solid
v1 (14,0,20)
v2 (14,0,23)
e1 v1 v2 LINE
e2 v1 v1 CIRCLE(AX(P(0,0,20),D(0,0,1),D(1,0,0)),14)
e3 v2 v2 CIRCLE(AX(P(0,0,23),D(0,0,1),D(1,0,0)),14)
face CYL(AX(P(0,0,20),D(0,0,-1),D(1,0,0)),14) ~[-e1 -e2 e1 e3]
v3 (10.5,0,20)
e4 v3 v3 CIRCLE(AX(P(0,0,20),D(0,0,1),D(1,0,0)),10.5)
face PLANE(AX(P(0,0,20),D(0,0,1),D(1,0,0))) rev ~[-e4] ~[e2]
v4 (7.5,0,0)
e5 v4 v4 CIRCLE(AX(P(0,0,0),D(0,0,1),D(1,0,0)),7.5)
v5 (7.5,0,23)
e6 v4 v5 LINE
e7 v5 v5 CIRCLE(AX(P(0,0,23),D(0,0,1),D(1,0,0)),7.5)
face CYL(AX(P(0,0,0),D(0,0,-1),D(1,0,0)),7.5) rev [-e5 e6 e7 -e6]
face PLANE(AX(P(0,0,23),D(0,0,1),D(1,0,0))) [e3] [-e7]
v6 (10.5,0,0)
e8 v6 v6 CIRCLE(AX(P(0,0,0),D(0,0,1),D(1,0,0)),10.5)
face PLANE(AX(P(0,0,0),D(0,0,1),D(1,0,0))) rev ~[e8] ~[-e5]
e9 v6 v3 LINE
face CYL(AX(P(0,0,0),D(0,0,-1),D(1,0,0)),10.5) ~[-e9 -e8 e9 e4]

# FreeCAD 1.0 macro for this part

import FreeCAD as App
import Part
import Sketcher
Q = App.Units.Quantity

doc = App.newDocument("Part")
body = doc.addObject("PartDesign::Body", "Body")

# Sketch on XY plane
sketch1 = doc.addObject("Sketcher::SketchObject", "Sketch")
body.addObject(sketch1)
sketch1.AttachmentSupport = (doc.XY_Plane, [""])
sketch1.MapMode = "FlatFace"
sketch1.addGeometry(Part.Circle(App.Vector(0, 0, 0), App.Vector(0, 0, 1), 10), False)
sketch1.addGeometry(Part.Circle(App.Vector(0, 0, 0), App.Vector(0, 0, 1), 8), False)
sketch1.addConstraint(Sketcher.Constraint("Coincident", 0, 3, -1, 1))
sketch1.addConstraint(Sketcher.Constraint("Coincident", 1, 3, -1, 1))
sketch1.addConstraint(Sketcher.Constraint("Diameter", 0, Q("21 mm")))
sketch1.addConstraint(Sketcher.Constraint("Diameter", 1, Q("15 mm")))
pad1 = doc.addObject("PartDesign::Pad", "Pad")
body.addObject(pad1)
pad1.Profile = sketch1
pad1.Length = 20

# Sketch on XY plane
sketch2 = doc.addObject("Sketcher::SketchObject", "Sketch001")
body.addObject(sketch2)
sketch2.AttachmentSupport = (doc.XY_Plane, [""])
sketch2.MapMode = "FlatFace"
sketch2.AttachmentOffset = App.Placement(App.Vector(0, 0, 20), App.Rotation())
sketch2.addGeometry(Part.Circle(App.Vector(0, 0, 0), App.Vector(0, 0, 1), 14), False)
sketch2.addGeometry(Part.Circle(App.Vector(0, 0, 0), App.Vector(0, 0, 1), 8), False)
sketch2.addConstraint(Sketcher.Constraint("Coincident", 0, 3, -1, 1))
sketch2.addConstraint(Sketcher.Constraint("Coincident", 1, 3, -1, 1))
sketch2.addConstraint(Sketcher.Constraint("Diameter", 0, Q("28 mm")))
sketch2.addConstraint(Sketcher.Constraint("Diameter", 1, Q("15 mm")))
pad2 = doc.addObject("PartDesign::Pad", "Pad001")
body.addObject(pad2)
pad2.Profile = sketch2
pad2.Length = 3

doc.recompute()
